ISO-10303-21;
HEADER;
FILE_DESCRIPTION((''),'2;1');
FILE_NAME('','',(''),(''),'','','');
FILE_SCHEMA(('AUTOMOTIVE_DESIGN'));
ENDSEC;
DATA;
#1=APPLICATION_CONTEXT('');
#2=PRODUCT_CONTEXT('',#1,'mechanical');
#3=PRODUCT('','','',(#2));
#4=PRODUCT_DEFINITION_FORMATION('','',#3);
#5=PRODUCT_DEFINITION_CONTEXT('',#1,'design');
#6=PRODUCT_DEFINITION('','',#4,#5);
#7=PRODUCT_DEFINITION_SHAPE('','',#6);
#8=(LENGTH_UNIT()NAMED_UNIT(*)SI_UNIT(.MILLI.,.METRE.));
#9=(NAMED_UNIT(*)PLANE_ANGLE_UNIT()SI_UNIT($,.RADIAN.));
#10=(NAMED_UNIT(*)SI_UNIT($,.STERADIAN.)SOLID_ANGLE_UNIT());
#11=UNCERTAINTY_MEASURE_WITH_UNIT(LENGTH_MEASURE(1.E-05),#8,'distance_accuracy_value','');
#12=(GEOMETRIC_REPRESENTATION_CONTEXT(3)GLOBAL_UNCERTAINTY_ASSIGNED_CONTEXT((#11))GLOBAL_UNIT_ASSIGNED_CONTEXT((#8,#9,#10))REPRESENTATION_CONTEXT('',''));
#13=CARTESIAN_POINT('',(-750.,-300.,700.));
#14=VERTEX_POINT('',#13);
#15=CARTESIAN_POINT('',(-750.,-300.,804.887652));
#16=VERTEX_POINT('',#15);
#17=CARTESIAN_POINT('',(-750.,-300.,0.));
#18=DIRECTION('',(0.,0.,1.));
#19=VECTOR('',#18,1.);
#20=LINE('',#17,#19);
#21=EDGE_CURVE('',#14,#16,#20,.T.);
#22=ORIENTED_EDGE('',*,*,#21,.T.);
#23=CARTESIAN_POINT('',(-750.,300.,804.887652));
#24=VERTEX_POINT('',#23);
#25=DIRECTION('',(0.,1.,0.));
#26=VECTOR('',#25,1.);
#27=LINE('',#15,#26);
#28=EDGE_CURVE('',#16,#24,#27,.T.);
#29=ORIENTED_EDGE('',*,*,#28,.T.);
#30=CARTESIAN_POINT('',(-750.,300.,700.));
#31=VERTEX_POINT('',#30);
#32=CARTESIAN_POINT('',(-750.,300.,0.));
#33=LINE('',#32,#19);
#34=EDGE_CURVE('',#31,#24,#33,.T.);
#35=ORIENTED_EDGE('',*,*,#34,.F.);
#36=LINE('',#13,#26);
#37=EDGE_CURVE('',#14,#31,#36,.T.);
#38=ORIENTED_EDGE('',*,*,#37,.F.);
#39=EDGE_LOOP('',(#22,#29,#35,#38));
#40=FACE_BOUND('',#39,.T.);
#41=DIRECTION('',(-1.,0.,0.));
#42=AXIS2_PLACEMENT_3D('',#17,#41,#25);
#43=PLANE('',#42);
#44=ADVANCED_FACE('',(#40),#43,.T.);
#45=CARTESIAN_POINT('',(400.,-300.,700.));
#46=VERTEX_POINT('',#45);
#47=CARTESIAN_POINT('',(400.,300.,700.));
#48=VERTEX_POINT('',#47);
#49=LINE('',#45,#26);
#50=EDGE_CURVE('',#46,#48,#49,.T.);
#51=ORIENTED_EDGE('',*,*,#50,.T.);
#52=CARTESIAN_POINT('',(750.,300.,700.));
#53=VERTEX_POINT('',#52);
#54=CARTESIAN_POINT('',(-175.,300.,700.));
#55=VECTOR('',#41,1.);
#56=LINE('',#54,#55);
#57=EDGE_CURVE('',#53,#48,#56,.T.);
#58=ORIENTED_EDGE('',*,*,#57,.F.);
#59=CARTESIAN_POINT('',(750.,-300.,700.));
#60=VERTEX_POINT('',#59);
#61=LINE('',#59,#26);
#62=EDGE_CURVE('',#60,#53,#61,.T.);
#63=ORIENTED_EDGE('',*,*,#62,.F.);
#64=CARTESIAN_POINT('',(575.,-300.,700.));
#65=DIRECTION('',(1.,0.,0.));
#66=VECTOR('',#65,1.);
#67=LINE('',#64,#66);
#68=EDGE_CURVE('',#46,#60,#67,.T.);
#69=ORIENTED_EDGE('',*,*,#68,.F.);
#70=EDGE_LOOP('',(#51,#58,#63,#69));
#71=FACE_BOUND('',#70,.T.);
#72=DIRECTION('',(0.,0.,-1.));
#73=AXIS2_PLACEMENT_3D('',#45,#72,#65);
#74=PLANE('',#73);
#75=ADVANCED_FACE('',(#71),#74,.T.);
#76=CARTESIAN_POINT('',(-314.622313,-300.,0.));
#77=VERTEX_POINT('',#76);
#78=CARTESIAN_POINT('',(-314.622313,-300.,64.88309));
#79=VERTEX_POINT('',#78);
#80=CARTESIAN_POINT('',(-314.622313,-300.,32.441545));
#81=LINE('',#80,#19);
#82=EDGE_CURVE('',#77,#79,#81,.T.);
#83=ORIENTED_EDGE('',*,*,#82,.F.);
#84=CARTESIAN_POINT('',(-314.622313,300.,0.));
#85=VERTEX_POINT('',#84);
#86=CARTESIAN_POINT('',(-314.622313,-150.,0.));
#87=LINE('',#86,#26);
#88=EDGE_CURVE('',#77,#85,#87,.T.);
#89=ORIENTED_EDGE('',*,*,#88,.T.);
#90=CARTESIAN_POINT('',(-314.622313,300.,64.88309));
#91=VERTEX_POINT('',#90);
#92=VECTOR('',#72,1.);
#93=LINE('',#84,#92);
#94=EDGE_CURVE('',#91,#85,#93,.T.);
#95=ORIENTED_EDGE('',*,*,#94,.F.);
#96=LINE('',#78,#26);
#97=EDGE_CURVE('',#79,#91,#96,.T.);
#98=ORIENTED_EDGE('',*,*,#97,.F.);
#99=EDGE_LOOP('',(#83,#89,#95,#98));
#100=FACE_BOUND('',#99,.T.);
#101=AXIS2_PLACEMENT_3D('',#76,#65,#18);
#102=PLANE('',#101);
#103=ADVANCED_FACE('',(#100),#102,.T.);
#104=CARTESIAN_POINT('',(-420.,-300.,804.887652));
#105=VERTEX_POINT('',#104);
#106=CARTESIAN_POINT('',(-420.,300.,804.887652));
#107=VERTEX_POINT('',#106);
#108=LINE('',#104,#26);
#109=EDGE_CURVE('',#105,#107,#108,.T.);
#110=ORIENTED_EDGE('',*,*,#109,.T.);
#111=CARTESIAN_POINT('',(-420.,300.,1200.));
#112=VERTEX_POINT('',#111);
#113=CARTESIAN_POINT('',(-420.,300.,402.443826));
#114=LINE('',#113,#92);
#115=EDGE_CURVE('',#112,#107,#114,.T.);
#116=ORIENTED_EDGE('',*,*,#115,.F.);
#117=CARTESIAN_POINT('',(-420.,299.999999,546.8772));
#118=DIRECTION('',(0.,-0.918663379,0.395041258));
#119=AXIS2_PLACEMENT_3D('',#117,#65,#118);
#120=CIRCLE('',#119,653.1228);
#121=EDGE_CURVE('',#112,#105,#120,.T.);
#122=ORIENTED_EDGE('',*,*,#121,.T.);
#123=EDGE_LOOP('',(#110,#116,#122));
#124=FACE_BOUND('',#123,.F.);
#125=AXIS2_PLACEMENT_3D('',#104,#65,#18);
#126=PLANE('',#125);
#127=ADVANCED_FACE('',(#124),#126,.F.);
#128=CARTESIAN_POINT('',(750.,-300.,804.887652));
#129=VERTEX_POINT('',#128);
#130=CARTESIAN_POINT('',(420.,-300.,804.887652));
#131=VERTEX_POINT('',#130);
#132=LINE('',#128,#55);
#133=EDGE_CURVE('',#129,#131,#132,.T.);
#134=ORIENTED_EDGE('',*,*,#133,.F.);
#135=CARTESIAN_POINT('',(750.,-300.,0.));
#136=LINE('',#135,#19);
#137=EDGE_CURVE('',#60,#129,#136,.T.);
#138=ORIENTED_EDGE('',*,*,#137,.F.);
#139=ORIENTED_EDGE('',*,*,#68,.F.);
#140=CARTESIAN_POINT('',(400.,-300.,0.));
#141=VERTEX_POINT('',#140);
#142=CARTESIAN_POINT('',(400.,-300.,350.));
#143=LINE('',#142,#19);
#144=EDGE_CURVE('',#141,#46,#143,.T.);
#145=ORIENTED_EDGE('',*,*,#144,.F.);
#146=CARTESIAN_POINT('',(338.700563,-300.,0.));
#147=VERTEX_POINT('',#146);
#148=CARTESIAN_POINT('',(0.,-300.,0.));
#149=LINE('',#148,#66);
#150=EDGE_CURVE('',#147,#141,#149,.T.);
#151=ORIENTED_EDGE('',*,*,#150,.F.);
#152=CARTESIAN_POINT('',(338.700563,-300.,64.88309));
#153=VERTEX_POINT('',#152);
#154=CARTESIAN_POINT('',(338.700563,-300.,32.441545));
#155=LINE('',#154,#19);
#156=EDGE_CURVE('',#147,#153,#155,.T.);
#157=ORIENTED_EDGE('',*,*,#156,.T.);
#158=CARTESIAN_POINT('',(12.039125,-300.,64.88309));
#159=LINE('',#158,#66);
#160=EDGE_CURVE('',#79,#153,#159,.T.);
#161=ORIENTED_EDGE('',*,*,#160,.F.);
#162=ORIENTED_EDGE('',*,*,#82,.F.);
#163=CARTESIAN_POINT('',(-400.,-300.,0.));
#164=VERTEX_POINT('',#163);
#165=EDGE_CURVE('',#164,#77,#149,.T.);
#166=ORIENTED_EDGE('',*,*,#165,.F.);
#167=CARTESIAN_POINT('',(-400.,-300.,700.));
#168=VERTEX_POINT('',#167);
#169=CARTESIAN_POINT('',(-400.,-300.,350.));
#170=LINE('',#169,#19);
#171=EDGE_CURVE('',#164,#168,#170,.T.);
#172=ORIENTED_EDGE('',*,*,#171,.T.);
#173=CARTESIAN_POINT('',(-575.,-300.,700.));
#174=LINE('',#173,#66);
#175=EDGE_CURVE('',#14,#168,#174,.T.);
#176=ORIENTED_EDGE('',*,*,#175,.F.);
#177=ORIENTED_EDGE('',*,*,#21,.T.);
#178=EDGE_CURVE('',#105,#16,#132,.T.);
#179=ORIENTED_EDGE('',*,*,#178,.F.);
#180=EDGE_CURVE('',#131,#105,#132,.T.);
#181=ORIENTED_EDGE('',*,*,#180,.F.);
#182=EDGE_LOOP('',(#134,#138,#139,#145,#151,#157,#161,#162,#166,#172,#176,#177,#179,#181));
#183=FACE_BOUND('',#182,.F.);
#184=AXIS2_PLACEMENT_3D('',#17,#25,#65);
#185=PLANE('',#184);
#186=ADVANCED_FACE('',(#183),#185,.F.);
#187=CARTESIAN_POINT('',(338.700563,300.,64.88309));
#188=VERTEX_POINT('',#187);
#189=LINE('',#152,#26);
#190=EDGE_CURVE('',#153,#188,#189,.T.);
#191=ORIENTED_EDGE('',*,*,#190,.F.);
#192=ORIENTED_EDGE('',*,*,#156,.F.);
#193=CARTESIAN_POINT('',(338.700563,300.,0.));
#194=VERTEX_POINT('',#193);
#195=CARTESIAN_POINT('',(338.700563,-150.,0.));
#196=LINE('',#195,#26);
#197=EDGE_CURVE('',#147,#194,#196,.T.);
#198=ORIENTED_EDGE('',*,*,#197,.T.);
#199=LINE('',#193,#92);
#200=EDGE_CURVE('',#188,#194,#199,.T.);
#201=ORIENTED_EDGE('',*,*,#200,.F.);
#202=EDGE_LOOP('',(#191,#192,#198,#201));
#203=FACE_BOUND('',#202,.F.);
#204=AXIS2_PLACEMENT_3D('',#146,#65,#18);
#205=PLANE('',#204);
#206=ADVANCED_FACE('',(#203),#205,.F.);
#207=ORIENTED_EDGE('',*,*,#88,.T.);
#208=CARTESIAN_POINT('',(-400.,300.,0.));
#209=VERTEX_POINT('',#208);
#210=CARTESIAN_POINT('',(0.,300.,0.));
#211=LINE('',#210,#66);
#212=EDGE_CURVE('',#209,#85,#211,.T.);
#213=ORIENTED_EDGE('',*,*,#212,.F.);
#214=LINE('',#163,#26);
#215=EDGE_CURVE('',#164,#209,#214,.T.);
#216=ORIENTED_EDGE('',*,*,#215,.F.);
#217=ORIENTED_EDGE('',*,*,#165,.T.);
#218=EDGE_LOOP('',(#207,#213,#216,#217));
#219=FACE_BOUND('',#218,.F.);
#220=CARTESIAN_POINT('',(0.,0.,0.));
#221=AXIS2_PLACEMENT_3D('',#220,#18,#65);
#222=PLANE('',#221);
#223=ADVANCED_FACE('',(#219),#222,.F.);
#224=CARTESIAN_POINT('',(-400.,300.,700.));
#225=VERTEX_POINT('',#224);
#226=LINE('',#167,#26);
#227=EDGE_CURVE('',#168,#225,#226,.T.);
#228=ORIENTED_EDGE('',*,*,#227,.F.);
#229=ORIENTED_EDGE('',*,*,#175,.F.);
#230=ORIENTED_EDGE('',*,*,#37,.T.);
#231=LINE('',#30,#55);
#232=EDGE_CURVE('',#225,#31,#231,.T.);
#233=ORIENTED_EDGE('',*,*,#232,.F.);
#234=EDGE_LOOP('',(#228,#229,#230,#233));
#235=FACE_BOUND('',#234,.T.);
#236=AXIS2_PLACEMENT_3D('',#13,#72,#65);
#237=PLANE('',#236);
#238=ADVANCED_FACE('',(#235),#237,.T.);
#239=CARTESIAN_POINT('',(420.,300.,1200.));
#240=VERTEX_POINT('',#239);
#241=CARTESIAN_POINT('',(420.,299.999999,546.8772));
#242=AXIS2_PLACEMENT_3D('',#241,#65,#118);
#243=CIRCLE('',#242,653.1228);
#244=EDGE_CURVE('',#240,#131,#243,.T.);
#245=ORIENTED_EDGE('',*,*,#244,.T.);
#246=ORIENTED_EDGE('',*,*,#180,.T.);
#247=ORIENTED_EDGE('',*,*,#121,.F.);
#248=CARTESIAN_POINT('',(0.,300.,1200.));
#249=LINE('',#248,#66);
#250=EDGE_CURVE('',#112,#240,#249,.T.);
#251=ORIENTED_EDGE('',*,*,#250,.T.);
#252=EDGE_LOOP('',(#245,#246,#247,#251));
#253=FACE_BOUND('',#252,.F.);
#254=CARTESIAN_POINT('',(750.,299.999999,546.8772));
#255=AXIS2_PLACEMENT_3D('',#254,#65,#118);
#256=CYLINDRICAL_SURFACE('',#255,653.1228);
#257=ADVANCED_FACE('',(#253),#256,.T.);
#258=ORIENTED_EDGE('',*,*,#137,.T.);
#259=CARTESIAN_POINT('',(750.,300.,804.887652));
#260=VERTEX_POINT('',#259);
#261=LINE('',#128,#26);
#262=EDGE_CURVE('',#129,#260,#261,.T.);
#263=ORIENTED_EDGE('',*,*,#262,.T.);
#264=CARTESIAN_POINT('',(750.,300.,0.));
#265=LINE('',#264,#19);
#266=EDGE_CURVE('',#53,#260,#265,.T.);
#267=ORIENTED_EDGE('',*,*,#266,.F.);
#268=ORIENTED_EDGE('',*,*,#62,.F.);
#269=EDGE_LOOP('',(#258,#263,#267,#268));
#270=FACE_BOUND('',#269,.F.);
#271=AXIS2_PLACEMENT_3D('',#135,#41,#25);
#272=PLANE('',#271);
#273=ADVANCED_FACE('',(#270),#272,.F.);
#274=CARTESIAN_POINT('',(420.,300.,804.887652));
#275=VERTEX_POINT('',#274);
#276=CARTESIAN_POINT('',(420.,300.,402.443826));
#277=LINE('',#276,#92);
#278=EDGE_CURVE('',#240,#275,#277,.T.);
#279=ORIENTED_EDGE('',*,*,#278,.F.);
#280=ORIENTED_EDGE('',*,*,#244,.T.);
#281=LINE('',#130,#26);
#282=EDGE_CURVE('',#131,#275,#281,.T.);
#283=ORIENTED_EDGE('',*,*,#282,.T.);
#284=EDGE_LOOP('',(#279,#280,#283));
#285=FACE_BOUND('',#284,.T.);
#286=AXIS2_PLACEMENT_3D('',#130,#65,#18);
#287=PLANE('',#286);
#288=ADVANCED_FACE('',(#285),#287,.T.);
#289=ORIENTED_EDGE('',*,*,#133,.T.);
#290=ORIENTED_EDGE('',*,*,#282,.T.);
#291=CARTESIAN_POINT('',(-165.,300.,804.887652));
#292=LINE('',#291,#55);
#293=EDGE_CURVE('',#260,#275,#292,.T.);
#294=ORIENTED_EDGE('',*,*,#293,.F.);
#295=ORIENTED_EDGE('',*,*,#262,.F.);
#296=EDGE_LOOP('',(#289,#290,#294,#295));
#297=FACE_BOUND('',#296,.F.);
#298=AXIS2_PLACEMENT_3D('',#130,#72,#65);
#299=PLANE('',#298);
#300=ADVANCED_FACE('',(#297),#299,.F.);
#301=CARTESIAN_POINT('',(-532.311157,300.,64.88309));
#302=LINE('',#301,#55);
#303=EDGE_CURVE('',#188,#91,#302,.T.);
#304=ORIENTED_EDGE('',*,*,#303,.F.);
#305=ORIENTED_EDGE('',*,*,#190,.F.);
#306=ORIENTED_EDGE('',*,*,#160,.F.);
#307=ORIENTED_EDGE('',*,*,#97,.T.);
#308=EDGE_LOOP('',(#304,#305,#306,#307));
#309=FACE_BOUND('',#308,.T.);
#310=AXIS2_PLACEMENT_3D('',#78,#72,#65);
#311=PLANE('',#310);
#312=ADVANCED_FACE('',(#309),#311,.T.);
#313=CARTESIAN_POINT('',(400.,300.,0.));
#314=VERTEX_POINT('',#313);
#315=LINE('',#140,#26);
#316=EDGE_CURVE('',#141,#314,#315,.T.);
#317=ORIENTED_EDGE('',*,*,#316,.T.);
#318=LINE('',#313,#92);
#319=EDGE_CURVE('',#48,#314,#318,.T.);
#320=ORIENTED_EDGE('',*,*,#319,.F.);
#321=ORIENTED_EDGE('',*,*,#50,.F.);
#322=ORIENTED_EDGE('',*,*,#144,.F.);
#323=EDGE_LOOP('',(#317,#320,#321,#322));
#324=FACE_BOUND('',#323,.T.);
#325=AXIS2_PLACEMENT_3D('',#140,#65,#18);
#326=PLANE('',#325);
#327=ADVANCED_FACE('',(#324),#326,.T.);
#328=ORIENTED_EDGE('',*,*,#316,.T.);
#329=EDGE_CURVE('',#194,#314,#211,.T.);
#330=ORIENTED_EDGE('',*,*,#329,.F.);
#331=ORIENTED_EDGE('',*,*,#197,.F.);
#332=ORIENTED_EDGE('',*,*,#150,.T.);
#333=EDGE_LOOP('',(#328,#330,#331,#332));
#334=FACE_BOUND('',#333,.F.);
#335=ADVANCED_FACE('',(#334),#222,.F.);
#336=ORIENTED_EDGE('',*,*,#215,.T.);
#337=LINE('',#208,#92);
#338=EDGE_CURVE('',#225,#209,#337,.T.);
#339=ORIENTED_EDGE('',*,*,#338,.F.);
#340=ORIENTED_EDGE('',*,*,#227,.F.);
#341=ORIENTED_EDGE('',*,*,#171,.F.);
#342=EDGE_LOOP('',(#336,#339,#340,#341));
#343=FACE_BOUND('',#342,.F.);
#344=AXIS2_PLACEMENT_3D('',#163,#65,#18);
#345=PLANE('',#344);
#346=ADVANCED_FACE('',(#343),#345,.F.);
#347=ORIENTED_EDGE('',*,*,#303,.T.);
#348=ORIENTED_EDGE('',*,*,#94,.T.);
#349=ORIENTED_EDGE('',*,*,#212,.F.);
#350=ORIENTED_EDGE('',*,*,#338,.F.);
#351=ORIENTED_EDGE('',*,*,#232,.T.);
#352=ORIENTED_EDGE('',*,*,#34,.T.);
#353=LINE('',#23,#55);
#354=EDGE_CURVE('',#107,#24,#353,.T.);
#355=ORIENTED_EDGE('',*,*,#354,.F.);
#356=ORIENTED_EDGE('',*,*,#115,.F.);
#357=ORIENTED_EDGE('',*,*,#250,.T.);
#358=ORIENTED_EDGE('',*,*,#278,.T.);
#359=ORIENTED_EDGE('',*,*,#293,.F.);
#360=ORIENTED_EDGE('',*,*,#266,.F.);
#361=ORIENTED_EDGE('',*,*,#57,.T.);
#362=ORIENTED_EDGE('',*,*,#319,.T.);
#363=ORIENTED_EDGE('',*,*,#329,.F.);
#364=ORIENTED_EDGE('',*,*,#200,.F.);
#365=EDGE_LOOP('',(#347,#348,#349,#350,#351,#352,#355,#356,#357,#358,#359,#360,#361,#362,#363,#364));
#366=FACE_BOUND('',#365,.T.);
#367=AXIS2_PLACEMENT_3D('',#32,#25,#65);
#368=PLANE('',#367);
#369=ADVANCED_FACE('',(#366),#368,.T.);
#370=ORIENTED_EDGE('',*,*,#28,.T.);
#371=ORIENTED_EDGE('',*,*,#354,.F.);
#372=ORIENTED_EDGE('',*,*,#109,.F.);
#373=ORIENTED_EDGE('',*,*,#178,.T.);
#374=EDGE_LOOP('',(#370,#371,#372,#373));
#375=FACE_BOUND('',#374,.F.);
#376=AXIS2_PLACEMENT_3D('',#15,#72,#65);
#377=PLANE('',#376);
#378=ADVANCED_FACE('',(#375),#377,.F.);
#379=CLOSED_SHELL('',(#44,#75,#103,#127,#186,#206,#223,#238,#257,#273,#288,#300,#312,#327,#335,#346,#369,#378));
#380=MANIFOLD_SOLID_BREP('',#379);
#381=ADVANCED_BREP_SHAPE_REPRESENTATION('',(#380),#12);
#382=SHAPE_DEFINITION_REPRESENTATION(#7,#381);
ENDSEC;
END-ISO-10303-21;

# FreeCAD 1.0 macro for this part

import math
import FreeCAD as App
import Part
import Sketcher
from FreeCAD import Vector
Q = App.Units.Quantity

doc = App.newDocument("Part")
body = doc.addObject("PartDesign::Body", "Body")

# Sketch on XY plane
sketch1 = body.newObject("Sketcher::SketchObject", "Sketch")
sketch1.AttachmentSupport = (doc.getObject("XY_Plane"), [""])
sketch1.MapMode = "FlatFace"
sketch1.addGeometry([
    Part.LineSegment(Vector(-750, 300, 0), Vector(-750, -300, 0)),
    Part.LineSegment(Vector(-750, -300, 0), Vector(750, -300, 0)),
    Part.LineSegment(Vector(750, -300, 0), Vector(750, 300, 0)),
    Part.LineSegment(Vector(750, 300, 0), Vector(-750, 300, 0)),
], False)
sketch1.addConstraint([
    Sketcher.Constraint("Coincident", 0, 2, 1, 1),
    Sketcher.Constraint("Coincident", 1, 2, 2, 1),
    Sketcher.Constraint("Coincident", 2, 2, 3, 1),
    Sketcher.Constraint("Coincident", 3, 2, 0, 1),
    Sketcher.Constraint("Vertical", 0),
    Sketcher.Constraint("Horizontal", 1),
    Sketcher.Constraint("Vertical", 2),
    Sketcher.Constraint("Horizontal", 3),
    Sketcher.Constraint("Symmetric", 0, 2, 2, 2, -1, 1),
    Sketcher.Constraint("DistanceX", 1, 1, 1, 2, Q("1500 mm")),
    Sketcher.Constraint("DistanceY", 0, 2, 0, 1, Q("600 mm")),
])
pad1 = body.newObject("PartDesign::Pad", "Pad")
pad1.Profile = sketch1
pad1.Length = 1200

# Sketch on YZ plane
sketch2 = body.newObject("Sketcher::SketchObject", "Sketch001")
sketch2.AttachmentSupport = (doc.getObject("YZ_Plane"), [""])
sketch2.MapMode = "FlatFace"
sketch2.AttachmentOffset = App.Placement(Vector(0, 0, 750), App.Rotation())
sketch2.addGeometry([
    Part.ArcOfCircle(Part.Circle(Vector(300, 547, 0), Vector(0, 0, 1), 653), math.radians(90), math.radians(157)),
    Part.LineSegment(Vector(300, 1200, 0), Vector(-300, 1200, 0)),
    Part.LineSegment(Vector(-300, 1200, 0), Vector(-300, 805, 0)),
], False)
sketch2.addConstraint([
    Sketcher.Constraint("Tangent", 0, 1, 1, 1),
    Sketcher.Constraint("Coincident", 1, 2, 2, 1),
    Sketcher.Constraint("Coincident", 2, 2, 0, 2),
    Sketcher.Constraint("Horizontal", 1),
    Sketcher.Constraint("Vertical", 2),
    Sketcher.Constraint("DistanceX", 1, 2, 1, 1, Q("600 mm")),
    Sketcher.Constraint("DistanceX", -1, 1, 0, 3, Q("299.999999 mm")),
    Sketcher.Constraint("DistanceY", -1, 1, 0, 1, Q("1200 mm")),
    Sketcher.Constraint("Radius", 0, Q("653.1228 mm")),
])
pocket1 = body.newObject("PartDesign::Pocket", "Pocket")
pocket1.Profile = sketch2
pocket1.Length = 1600

# Sketch on XZ plane
sketch3 = body.newObject("Sketcher::SketchObject", "Sketch002")
sketch3.AttachmentSupport = (doc.getObject("XZ_Plane"), [""])
sketch3.MapMode = "FlatFace"
sketch3.AttachmentOffset = App.Placement(Vector(0, 0, 300), App.Rotation())
sketch3.addGeometry([
    Part.LineSegment(Vector(-750, 700, 0), Vector(-750, 0, 0)),  # 0
    Part.LineSegment(Vector(-750, 0, 0), Vector(-400, 0, 0)),  # 1
    Part.LineSegment(Vector(-400, 0, 0), Vector(-400, 700, 0)),  # 2
    Part.LineSegment(Vector(-400, 700, 0), Vector(-750, 700, 0)),  # 3
    Part.LineSegment(Vector(400, 700, 0), Vector(400, 0, 0)),  # 4
    Part.LineSegment(Vector(400, 0, 0), Vector(750, 0, 0)),  # 5
    Part.LineSegment(Vector(750, 0, 0), Vector(750, 700, 0)),  # 6
    Part.LineSegment(Vector(750, 700, 0), Vector(400, 700, 0)),  # 7
], False)
sketch3.addConstraint([
    Sketcher.Constraint("Coincident", 0, 2, 1, 1),
    Sketcher.Constraint("Coincident", 1, 2, 2, 1),
    Sketcher.Constraint("Coincident", 2, 2, 3, 1),
    Sketcher.Constraint("Coincident", 3, 2, 0, 1),
    Sketcher.Constraint("Coincident", 4, 2, 5, 1),
    Sketcher.Constraint("Coincident", 5, 2, 6, 1),
    Sketcher.Constraint("Coincident", 6, 2, 7, 1),
    Sketcher.Constraint("Coincident", 7, 2, 4, 1),
    Sketcher.Constraint("Vertical", 0),
    Sketcher.Constraint("Horizontal", 1),
    Sketcher.Constraint("Vertical", 2),
    Sketcher.Constraint("Horizontal", 3),
    Sketcher.Constraint("Vertical", 4),
    Sketcher.Constraint("Horizontal", 5),
    Sketcher.Constraint("Vertical", 6),
    Sketcher.Constraint("Horizontal", 7),
    Sketcher.Constraint("Symmetric", 1, 2, 4, 2, -1, 1),
    Sketcher.Constraint("Symmetric", 0, 2, 5, 2, -2),
    Sketcher.Constraint("Horizontal", 3, 2, 6, 2),
    Sketcher.Constraint("DistanceX", 1, 1, 1, 2, Q("350 mm")),
    Sketcher.Constraint("DistanceY", 0, 2, 0, 1, Q("700 mm")),
    Sketcher.Constraint("DistanceX", 0, 2, -1, 1, Q("750 mm")),
])
pocket2 = body.newObject("PartDesign::Pocket", "Pocket001")
pocket2.Profile = sketch3
pocket2.Length = 1500

# Sketch on XZ plane
sketch4 = body.newObject("Sketcher::SketchObject", "Sketch003")
sketch4.AttachmentSupport = (doc.getObject("XZ_Plane"), [""])
sketch4.MapMode = "FlatFace"
sketch4.AttachmentOffset = App.Placement(Vector(0, 0, 300), App.Rotation())
sketch4.addGeometry([
    Part.LineSegment(Vector(-750, 1225, 0), Vector(-750, 805, 0)),  # 0
    Part.LineSegment(Vector(-750, 805, 0), Vector(-420, 805, 0)),  # 1
    Part.LineSegment(Vector(-420, 805, 0), Vector(-420, 1225, 0)),  # 2
    Part.LineSegment(Vector(-420, 1225, 0), Vector(-750, 1225, 0)),  # 3
    Part.LineSegment(Vector(420, 1225, 0), Vector(420, 805, 0)),  # 4
    Part.LineSegment(Vector(420, 805, 0), Vector(750, 805, 0)),  # 5
    Part.LineSegment(Vector(750, 805, 0), Vector(750, 1225, 0)),  # 6
    Part.LineSegment(Vector(750, 1225, 0), Vector(420, 1225, 0)),  # 7
], False)
sketch4.addConstraint([
    Sketcher.Constraint("Coincident", 0, 2, 1, 1),
    Sketcher.Constraint("Coincident", 1, 2, 2, 1),
    Sketcher.Constraint("Coincident", 2, 2, 3, 1),
    Sketcher.Constraint("Coincident", 3, 2, 0, 1),
    Sketcher.Constraint("Coincident", 4, 2, 5, 1),
    Sketcher.Constraint("Coincident", 5, 2, 6, 1),
    Sketcher.Constraint("Coincident", 6, 2, 7, 1),
    Sketcher.Constraint("Coincident", 7, 2, 4, 1),
    Sketcher.Constraint("Vertical", 0),
    Sketcher.Constraint("Horizontal", 1),
    Sketcher.Constraint("Vertical", 2),
    Sketcher.Constraint("Horizontal", 3),
    Sketcher.Constraint("Vertical", 4),
    Sketcher.Constraint("Horizontal", 5),
    Sketcher.Constraint("Vertical", 6),
    Sketcher.Constraint("Horizontal", 7),
    Sketcher.Constraint("Symmetric", 1, 2, 4, 2, -2),
    Sketcher.Constraint("Symmetric", 3, 2, 6, 2, -2),
    Sketcher.Constraint("DistanceX", 1, 1, 1, 2, Q("330 mm")),
    Sketcher.Constraint("DistanceY", 0, 2, 0, 1, Q("420 mm")),
    Sketcher.Constraint("DistanceX", 0, 2, -1, 1, Q("750 mm")),
    Sketcher.Constraint("DistanceY", -1, 1, 0, 2, Q("804.887652 mm")),
])
pocket3 = body.newObject("PartDesign::Pocket", "Pocket002")
pocket3.Profile = sketch4
pocket3.Length = 2000

# Sketch on XZ plane
sketch5 = body.newObject("Sketcher::SketchObject", "Sketch004")
sketch5.AttachmentSupport = (doc.getObject("XZ_Plane"), [""])
sketch5.MapMode = "FlatFace"
sketch5.AttachmentOffset = App.Placement(Vector(0, 0, 300), App.Rotation())
sketch5.addGeometry([
    Part.LineSegment(Vector(-315, 65, 0), Vector(-315, 0, 0)),
    Part.LineSegment(Vector(-315, 0, 0), Vector(339, 0, 0)),
    Part.LineSegment(Vector(339, 0, 0), Vector(339, 65, 0)),
    Part.LineSegment(Vector(339, 65, 0), Vector(-315, 65, 0)),
], False)
sketch5.addConstraint([
    Sketcher.Constraint("Coincident", 0, 2, 1, 1),
    Sketcher.Constraint("Coincident", 1, 2, 2, 1),
    Sketcher.Constraint("Coincident", 2, 2, 3, 1),
    Sketcher.Constraint("Coincident", 3, 2, 0, 1),
    Sketcher.Constraint("Vertical", 0),
    Sketcher.Constraint("Horizontal", 1),
    Sketcher.Constraint("Vertical", 2),
    Sketcher.Constraint("Horizontal", 3),
    Sketcher.Constraint("PointOnObject", 0, 2, -1),
    Sketcher.Constraint("DistanceY", 0, 2, 0, 1, Q("64.883091 mm")),
    Sketcher.Constraint("DistanceX", 1, 1, 1, 2, Q("653.322876 mm")),
    Sketcher.Constraint("DistanceX", 0, 2, -1, 1, Q("314.622313 mm")),
])
pocket4 = body.newObject("PartDesign::Pocket", "Pocket003")
pocket4.Profile = sketch5
pocket4.Length = 1500

doc.recompute()
